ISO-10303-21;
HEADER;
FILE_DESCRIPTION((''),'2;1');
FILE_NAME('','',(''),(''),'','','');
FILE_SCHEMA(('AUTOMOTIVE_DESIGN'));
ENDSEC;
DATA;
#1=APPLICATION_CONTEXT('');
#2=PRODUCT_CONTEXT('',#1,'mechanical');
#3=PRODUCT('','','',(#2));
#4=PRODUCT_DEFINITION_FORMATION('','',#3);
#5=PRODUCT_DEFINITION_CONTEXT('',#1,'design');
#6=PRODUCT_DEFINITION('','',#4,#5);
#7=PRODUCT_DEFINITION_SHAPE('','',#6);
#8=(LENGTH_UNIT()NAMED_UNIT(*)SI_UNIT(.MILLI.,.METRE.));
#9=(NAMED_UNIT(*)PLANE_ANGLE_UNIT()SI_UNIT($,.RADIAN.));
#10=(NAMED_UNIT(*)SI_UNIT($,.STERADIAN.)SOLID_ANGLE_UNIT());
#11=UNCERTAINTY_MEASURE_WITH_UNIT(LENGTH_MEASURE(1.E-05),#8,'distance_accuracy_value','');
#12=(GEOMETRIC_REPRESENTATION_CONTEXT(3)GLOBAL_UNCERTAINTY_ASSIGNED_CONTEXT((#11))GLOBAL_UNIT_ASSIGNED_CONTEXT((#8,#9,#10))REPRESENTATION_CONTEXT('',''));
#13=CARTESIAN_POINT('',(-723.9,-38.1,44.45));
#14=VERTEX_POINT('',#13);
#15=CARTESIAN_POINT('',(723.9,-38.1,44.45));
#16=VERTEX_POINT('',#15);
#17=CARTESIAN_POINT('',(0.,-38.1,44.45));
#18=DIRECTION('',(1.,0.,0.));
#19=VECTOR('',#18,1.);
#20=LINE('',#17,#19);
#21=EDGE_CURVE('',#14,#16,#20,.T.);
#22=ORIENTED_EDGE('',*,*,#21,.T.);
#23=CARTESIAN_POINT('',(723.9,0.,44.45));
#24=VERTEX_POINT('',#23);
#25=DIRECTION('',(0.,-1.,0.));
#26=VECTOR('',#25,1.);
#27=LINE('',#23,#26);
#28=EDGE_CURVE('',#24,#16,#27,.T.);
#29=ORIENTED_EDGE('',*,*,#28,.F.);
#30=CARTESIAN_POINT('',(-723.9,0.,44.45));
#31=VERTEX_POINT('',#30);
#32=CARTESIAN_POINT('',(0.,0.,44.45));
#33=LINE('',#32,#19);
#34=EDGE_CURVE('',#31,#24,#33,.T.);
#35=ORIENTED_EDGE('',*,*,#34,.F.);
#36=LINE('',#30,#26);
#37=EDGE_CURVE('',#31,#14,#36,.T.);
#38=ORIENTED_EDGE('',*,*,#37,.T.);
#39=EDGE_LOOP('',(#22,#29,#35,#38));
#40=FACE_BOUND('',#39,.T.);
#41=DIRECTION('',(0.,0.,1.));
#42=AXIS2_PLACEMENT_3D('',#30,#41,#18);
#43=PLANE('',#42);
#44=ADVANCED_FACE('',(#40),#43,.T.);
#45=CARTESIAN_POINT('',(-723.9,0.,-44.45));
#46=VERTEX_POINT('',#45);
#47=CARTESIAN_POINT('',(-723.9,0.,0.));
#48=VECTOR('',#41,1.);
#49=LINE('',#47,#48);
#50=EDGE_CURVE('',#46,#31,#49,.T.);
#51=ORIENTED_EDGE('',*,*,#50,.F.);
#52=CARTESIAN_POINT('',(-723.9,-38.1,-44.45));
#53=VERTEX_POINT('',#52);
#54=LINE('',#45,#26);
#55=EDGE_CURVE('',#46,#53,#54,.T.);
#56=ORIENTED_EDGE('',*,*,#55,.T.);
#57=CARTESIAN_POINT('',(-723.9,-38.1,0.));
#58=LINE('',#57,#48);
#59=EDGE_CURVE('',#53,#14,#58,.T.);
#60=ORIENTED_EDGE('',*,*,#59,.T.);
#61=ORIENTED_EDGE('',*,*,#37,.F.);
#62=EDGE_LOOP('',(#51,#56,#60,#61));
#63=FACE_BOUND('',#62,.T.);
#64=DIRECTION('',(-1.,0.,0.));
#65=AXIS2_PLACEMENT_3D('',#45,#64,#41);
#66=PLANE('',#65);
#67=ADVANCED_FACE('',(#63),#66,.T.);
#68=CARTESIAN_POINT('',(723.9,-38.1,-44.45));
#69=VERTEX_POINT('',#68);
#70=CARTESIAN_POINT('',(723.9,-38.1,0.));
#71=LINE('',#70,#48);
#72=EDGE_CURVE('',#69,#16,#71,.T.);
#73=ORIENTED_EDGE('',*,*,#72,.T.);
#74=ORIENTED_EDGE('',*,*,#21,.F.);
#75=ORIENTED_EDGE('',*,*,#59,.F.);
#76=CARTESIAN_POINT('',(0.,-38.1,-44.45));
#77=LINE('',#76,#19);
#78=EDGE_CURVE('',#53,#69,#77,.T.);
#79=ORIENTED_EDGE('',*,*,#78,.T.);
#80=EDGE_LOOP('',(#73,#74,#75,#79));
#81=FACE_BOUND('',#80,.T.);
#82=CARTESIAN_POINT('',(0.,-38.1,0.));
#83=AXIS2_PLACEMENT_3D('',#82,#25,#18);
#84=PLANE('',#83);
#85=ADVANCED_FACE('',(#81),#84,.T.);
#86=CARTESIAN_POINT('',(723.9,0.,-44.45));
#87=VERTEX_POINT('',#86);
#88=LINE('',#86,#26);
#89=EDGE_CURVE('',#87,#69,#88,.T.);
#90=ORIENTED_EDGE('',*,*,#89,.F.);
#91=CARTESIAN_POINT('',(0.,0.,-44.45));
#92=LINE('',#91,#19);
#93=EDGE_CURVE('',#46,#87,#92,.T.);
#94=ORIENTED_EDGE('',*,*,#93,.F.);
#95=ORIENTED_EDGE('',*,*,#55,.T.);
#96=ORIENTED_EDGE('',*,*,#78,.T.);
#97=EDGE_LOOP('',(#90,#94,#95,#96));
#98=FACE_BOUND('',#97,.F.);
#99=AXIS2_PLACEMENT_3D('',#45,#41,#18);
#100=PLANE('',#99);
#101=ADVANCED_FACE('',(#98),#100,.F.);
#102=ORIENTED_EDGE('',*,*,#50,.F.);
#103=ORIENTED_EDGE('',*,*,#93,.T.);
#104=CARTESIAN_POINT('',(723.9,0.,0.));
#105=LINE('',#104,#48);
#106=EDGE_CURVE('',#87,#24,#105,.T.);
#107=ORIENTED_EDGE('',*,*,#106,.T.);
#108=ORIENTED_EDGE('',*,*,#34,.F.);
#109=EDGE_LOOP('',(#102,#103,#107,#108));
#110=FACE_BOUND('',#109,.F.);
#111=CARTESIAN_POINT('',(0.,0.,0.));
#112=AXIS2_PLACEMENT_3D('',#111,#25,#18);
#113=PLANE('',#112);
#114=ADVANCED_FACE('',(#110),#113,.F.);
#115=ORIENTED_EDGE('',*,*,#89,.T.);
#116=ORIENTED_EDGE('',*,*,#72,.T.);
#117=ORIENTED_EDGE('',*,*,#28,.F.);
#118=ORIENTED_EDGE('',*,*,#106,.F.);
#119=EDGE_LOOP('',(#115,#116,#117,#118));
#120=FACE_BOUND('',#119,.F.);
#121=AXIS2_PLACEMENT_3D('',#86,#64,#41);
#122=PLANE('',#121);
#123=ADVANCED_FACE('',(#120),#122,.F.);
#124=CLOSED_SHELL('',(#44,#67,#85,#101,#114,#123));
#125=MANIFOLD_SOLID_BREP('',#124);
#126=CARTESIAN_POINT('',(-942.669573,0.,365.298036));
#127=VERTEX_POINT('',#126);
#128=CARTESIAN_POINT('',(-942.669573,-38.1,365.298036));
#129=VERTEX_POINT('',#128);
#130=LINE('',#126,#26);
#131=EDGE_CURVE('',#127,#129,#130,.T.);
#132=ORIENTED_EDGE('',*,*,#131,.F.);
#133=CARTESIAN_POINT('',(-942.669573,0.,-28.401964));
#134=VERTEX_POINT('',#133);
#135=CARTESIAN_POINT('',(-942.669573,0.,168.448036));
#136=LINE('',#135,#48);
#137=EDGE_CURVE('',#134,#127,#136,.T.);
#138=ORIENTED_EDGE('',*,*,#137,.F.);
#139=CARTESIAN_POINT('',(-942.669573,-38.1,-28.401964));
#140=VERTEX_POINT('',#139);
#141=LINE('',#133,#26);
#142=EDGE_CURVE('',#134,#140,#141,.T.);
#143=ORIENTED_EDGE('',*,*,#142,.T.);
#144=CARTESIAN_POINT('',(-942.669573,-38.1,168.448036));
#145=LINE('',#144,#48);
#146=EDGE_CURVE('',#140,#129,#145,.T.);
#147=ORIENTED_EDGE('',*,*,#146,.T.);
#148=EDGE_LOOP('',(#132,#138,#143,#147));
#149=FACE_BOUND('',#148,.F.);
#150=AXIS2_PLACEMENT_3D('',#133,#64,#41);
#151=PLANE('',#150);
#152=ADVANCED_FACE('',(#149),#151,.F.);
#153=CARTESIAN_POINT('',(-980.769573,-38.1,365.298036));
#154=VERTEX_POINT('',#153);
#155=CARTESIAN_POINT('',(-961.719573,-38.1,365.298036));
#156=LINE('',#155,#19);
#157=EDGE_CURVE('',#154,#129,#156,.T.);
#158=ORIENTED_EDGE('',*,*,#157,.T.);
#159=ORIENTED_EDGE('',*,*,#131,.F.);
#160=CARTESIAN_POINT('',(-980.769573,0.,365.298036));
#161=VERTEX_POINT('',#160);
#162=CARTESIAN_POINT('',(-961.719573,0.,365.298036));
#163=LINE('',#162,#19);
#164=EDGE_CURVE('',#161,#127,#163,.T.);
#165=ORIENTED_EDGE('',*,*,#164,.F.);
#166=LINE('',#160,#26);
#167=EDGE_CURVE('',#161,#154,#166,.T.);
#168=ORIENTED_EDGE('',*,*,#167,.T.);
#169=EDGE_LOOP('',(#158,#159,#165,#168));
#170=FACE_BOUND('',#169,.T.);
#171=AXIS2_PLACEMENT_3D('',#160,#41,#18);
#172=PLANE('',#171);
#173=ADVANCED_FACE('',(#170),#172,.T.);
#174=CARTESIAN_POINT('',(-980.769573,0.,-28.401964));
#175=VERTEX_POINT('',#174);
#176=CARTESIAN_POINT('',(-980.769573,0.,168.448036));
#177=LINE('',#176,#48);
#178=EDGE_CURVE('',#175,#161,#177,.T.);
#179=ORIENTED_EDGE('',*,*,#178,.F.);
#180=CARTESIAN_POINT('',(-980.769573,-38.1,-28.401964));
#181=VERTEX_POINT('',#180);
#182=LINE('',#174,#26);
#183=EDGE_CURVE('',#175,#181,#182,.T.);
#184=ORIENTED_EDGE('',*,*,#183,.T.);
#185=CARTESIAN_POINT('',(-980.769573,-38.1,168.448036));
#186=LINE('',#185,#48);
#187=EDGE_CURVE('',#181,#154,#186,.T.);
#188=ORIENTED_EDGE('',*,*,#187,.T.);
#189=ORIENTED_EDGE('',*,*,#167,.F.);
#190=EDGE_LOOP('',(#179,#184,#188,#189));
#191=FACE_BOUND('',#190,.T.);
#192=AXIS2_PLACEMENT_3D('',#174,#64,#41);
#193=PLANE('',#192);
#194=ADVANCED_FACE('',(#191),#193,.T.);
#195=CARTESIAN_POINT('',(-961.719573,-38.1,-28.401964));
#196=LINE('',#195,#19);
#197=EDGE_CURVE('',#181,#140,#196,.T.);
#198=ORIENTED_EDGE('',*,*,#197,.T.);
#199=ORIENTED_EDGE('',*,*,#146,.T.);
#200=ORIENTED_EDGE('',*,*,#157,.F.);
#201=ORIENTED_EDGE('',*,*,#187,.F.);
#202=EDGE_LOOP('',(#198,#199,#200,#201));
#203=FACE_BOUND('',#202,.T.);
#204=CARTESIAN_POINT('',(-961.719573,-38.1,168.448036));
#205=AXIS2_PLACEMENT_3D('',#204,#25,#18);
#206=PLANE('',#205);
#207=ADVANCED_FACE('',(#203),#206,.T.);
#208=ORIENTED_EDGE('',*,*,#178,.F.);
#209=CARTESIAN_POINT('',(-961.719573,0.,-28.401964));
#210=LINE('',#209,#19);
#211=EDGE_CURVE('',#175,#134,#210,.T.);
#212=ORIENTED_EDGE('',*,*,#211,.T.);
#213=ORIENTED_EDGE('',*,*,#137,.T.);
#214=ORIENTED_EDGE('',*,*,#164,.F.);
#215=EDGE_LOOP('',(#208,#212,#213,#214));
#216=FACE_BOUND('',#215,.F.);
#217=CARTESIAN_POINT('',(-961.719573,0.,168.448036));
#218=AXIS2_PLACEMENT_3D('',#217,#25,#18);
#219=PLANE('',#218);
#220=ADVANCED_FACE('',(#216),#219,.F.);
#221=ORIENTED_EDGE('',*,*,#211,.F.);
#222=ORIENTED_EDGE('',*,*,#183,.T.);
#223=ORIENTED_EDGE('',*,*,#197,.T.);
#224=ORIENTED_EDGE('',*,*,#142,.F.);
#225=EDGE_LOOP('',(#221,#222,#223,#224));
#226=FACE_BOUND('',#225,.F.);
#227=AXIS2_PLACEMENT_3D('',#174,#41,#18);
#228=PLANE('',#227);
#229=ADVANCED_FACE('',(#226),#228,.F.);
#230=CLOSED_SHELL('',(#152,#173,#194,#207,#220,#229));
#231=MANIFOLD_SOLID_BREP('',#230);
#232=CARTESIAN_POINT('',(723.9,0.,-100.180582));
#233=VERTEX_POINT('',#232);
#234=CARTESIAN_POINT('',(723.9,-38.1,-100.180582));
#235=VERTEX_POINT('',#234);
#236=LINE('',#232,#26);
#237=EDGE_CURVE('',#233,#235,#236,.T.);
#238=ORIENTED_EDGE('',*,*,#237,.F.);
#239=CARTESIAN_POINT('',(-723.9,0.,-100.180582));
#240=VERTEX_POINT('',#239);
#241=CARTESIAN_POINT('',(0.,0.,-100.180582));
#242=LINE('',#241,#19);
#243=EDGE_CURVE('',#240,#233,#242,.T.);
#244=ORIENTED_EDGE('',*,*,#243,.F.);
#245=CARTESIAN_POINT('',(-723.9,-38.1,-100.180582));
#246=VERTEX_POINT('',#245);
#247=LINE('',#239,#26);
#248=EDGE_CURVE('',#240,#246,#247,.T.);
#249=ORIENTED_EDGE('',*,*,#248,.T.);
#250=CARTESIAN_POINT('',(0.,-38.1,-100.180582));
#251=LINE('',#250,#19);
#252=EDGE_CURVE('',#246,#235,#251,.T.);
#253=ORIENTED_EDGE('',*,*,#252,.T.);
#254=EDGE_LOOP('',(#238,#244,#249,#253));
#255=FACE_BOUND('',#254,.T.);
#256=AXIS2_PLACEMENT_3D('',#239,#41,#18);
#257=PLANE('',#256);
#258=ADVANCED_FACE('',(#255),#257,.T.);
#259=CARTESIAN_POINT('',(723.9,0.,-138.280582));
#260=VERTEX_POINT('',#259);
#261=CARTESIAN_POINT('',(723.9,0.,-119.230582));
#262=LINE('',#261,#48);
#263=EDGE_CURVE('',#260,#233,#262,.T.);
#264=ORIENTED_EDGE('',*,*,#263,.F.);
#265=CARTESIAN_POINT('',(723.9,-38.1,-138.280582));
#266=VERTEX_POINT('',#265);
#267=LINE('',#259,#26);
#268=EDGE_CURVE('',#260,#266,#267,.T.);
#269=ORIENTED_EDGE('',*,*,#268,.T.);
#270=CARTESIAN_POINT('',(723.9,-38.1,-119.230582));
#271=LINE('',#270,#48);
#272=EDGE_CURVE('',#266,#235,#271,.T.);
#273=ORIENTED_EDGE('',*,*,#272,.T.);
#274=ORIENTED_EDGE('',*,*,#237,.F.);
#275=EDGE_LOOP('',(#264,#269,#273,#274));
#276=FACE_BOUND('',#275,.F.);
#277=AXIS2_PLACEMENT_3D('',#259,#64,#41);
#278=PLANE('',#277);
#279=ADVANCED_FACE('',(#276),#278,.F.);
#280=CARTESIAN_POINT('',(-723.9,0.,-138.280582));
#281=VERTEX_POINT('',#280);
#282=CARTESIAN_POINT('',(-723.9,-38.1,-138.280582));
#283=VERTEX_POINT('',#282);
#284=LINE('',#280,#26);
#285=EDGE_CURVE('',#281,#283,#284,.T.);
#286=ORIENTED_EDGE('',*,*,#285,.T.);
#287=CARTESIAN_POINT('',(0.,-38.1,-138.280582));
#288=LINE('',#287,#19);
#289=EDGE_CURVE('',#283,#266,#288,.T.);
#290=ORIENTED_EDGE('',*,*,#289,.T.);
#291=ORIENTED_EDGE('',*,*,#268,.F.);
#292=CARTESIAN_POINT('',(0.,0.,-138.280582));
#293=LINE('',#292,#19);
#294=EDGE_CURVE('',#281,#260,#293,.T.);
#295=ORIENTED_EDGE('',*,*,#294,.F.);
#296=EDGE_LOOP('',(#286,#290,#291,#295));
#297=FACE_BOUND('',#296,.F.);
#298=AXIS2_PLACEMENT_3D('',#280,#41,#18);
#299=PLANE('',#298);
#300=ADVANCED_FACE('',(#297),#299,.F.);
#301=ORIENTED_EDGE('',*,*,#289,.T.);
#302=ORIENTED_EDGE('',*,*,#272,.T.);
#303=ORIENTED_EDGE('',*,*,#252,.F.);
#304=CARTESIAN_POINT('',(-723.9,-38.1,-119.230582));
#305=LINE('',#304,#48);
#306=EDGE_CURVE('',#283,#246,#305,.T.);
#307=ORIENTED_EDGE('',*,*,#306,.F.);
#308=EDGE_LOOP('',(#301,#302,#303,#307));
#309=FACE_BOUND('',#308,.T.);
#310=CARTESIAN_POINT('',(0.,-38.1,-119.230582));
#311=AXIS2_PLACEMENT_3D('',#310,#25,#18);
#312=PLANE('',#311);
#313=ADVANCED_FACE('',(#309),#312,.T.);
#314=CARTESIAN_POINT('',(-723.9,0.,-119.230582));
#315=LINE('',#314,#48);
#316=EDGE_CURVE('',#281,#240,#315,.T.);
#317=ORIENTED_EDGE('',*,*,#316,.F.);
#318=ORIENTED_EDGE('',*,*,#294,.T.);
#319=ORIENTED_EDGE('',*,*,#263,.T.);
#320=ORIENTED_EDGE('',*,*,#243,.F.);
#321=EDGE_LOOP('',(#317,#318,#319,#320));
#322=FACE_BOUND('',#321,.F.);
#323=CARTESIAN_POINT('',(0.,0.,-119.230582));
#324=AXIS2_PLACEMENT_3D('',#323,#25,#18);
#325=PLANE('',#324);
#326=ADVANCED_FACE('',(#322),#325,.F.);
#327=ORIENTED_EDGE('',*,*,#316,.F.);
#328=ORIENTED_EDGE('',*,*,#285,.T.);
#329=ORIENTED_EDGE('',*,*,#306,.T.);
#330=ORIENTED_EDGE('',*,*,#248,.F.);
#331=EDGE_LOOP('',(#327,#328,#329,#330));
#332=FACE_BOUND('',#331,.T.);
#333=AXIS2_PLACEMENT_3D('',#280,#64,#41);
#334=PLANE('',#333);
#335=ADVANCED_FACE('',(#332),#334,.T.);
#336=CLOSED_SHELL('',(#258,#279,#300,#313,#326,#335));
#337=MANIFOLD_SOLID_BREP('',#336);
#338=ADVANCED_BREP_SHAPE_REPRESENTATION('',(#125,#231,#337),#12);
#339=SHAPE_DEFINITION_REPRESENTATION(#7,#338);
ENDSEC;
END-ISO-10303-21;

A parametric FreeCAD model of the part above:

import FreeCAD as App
import Part
import Sketcher
from FreeCAD import Vector
Q = App.Units.Quantity


def add_polygon(sketch, points):
    """Adds a closed chain of lines whose ends are joined by coincident constraints."""
    first, n = sketch.GeometryCount, len(points)
    for a, b in zip(points, points[1:] + points[:1]):
        sketch.addGeometry(Part.LineSegment(App.Vector(*a, 0), App.Vector(*b, 0)), False)
    for i in range(n):
        sketch.addConstraint(Sketcher.Constraint("Coincident", first + i, 2, first + (i + 1) % n, 1))

doc = App.newDocument("Part")
body = doc.addObject("PartDesign::Body", "Body")

# Sketch on XZ plane
sketch1 = doc.addObject("Sketcher::SketchObject", "Sketch")
body.addObject(sketch1)
sketch1.AttachmentSupport = (doc.XZ_Plane, [""])
sketch1.MapMode = "FlatFace"
add_polygon(sketch1, [(-724, 44), (-724, -44), (724, -44), (724, 44)])  # lines 0-3
sketch1.addConstraint([
    Sketcher.Constraint("Vertical", 0),
    Sketcher.Constraint("Horizontal", 1),
    Sketcher.Constraint("Vertical", 2),
    Sketcher.Constraint("Horizontal", 3),
    Sketcher.Constraint("Symmetric", 0, 2, 2, 2, -1, 1),
    Sketcher.Constraint("DistanceX", 1, 1, 1, 2, Q("57 in")),
    Sketcher.Constraint("DistanceY", 0, 2, 0, 1, Q("3.5 in")),
])
pad1 = doc.addObject("PartDesign::Pad", "Pad")
body.addObject(pad1)
pad1.Profile = sketch1
pad1.Length = Q("1.5 in")
body2 = doc.addObject("PartDesign::Body", "Body001")

# Sketch on XZ plane
sketch2 = doc.addObject("Sketcher::SketchObject", "Sketch001")
body2.addObject(sketch2)
sketch2.AttachmentSupport = (doc.getObject("XZ_Plane001"), [""])
sketch2.MapMode = "FlatFace"
add_polygon(sketch2, [(-724, -100), (-724, -138), (724, -138), (724, -100)])  # lines 0-3
sketch2.addConstraint([
    Sketcher.Constraint("Vertical", 0),
    Sketcher.Constraint("Horizontal", 1),
    Sketcher.Constraint("Vertical", 2),
    Sketcher.Constraint("Horizontal", 3),
    Sketcher.Constraint("DistanceX", 1, 1, 1, 2, Q("57 in")),
    Sketcher.Constraint("DistanceY", 0, 2, 0, 1, Q("1.5 in")),
    Sketcher.Constraint("DistanceX", 0, 2, -1, 1, Q("28.5 in")),
    Sketcher.Constraint("DistanceY", 2, 2, -1, 1, Q("100.180582 mm")),
])
pad2 = doc.addObject("PartDesign::Pad", "Pad001")
body2.addObject(pad2)
pad2.Profile = sketch2
pad2.Length = Q("1.5 in")
body3 = doc.addObject("PartDesign::Body", "Body002")

# Sketch on XZ plane
sketch3 = doc.addObject("Sketcher::SketchObject", "Sketch002")
body3.addObject(sketch3)
sketch3.AttachmentSupport = (doc.getObject("XZ_Plane002"), [""])
sketch3.MapMode = "FlatFace"
add_polygon(sketch3, [(-981, 365), (-981, -28), (-943, -28), (-943, 365)])  # lines 0-3
sketch3.addConstraint([
    Sketcher.Constraint("Vertical", 0),
    Sketcher.Constraint("Horizontal", 1),
    Sketcher.Constraint("Vertical", 2),
    Sketcher.Constraint("Horizontal", 3),
    Sketcher.Constraint("DistanceX", 1, 1, 1, 2, Q("1.5 in")),
    Sketcher.Constraint("DistanceY", 0, 2, 0, 1, Q("15.5 in")),
    Sketcher.Constraint("DistanceX", 0, 2, -1, 1, Q("980.769573 mm")),
    Sketcher.Constraint("DistanceY", 0, 2, -1, 1, Q("28.401964 mm")),
])
pad3 = doc.addObject("PartDesign::Pad", "Pad002")
body3.addObject(pad3)
pad3.Profile = sketch3
pad3.Length = Q("1.5 in")

doc.recompute()
